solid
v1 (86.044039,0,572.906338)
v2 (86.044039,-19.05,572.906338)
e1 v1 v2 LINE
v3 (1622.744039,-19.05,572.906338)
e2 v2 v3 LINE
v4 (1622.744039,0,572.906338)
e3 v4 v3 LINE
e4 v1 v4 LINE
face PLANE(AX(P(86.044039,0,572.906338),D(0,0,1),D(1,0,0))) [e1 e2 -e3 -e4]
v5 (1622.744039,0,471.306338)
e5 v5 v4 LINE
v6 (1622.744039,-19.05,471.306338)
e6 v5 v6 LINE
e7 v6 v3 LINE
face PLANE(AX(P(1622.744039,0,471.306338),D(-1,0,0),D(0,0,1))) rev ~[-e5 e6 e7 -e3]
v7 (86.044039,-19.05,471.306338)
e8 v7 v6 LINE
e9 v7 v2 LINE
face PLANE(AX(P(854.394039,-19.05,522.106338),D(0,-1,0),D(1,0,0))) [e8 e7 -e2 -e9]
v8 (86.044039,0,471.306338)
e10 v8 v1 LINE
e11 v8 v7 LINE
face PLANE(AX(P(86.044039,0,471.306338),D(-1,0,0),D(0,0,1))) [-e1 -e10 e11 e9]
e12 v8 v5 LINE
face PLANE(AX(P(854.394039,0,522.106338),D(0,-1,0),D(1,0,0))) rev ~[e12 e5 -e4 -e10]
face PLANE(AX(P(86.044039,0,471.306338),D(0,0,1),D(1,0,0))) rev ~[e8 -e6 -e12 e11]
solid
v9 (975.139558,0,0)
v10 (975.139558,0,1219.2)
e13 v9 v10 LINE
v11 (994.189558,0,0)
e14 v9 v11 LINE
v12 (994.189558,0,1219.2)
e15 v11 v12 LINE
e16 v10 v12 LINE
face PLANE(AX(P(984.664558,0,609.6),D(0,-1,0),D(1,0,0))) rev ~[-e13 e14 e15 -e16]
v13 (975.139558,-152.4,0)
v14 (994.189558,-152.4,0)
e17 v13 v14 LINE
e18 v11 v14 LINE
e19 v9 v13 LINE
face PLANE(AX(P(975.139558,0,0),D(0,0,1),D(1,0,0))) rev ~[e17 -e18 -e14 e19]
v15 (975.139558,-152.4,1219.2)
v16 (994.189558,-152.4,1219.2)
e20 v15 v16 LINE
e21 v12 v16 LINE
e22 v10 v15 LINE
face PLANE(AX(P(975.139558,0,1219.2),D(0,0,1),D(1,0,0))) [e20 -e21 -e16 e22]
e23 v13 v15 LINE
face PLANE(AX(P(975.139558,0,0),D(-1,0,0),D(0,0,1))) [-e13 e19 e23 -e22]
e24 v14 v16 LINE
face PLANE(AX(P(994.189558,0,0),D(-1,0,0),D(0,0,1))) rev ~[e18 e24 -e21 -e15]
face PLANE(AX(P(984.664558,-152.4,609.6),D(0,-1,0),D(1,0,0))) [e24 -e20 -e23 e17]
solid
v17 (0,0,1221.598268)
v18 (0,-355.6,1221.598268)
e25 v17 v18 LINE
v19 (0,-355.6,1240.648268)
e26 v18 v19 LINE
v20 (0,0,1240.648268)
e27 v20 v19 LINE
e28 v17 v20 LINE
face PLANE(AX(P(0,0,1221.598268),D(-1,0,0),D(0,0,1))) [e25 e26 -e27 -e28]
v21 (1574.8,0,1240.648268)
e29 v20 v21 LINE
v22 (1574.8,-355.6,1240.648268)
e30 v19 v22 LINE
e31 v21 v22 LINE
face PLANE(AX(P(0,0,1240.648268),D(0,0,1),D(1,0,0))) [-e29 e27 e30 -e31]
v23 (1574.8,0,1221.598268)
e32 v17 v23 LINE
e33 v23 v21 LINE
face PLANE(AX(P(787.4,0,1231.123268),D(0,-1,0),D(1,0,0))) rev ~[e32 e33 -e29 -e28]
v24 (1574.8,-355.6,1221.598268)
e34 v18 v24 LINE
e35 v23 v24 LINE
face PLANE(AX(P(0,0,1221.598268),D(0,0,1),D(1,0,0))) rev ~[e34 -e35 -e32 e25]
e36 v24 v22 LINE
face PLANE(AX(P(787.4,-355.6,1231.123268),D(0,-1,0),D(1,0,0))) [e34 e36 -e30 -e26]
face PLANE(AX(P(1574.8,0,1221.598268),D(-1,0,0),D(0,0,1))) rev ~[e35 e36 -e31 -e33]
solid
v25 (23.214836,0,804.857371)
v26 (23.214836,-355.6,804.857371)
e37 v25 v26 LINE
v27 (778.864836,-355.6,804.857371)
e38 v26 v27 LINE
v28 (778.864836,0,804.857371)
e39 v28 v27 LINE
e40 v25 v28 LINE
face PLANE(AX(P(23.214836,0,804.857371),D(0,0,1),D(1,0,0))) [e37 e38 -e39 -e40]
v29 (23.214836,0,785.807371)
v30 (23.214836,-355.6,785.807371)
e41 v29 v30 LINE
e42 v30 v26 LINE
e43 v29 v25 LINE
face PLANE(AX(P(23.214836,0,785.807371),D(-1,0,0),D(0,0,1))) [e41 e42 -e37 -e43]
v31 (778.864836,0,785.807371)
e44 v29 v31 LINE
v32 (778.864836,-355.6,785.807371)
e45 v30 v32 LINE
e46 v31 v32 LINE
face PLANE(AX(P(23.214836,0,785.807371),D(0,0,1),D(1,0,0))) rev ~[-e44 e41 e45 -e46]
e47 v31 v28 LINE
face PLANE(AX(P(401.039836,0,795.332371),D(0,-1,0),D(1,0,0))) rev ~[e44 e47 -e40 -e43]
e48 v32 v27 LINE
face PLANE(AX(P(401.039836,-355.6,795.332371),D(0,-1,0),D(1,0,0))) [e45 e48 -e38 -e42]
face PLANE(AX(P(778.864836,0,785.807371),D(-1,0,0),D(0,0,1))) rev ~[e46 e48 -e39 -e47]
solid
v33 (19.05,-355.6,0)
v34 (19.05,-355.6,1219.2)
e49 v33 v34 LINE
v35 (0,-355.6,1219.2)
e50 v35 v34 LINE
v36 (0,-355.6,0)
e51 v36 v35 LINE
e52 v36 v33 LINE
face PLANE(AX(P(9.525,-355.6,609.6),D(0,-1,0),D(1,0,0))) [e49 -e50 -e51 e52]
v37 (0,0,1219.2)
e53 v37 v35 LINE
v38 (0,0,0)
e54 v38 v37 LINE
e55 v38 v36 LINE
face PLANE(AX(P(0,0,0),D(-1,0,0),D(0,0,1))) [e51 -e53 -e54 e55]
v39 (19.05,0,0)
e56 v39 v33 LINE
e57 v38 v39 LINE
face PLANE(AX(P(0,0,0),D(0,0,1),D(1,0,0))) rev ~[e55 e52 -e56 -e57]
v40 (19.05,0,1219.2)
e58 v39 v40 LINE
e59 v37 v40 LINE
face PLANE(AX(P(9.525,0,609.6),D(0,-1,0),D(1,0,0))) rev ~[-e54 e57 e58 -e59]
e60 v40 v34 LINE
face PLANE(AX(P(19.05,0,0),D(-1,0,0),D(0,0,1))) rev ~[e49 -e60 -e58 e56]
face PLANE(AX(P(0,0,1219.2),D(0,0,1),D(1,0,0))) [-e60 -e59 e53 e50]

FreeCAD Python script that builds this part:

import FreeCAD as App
import Part
import Sketcher
Q = App.Units.Quantity

doc = App.newDocument("Part")
body = doc.addObject("PartDesign::Body", "Body")

# Sketch on XZ plane
sketch1 = doc.addObject("Sketcher::SketchObject", "Sketch")
body.addObject(sketch1)
sketch1.AttachmentSupport = (doc.XZ_Plane, [""])
sketch1.MapMode = "FlatFace"
sketch1.addGeometry(Part.LineSegment(App.Vector(0, 1219.2, 0), App.Vector(0, 0, 0)), False)
sketch1.addGeometry(Part.LineSegment(App.Vector(0, 0, 0), App.Vector(19.05, 0, 0)), False)
sketch1.addGeometry(Part.LineSegment(App.Vector(19.05, 0, 0), App.Vector(19.05, 1219.2, 0)), False)
sketch1.addGeometry(Part.LineSegment(App.Vector(19.05, 1219.2, 0), App.Vector(0, 1219.2, 0)), False)
sketch1.addConstraint(Sketcher.Constraint("Coincident", 0, 2, 1, 1))
sketch1.addConstraint(Sketcher.Constraint("Coincident", 1, 2, 2, 1))
sketch1.addConstraint(Sketcher.Constraint("Coincident", 2, 2, 3, 1))
sketch1.addConstraint(Sketcher.Constraint("Coincident", 3, 2, 0, 1))
sketch1.addConstraint(Sketcher.Constraint("Vertical", 0))
sketch1.addConstraint(Sketcher.Constraint("Horizontal", 1))
sketch1.addConstraint(Sketcher.Constraint("Vertical", 2))
sketch1.addConstraint(Sketcher.Constraint("Horizontal", 3))
sketch1.addConstraint(Sketcher.Constraint("Coincident", 0, 2, -1, 1))
sketch1.addConstraint(Sketcher.Constraint("DistanceY", 0, 2, 0, 1, Q("48 in")))
sketch1.addConstraint(Sketcher.Constraint("DistanceX", 1, 1, 1, 2, Q("0.75 in")))
pad1 = doc.addObject("PartDesign::Pad", "Pad")
body.addObject(pad1)
pad1.Profile = sketch1
pad1.Length = Q("14 in")
body2 = doc.addObject("PartDesign::Body", "Body001")

# Sketch on XZ plane
sketch2 = doc.addObject("Sketcher::SketchObject", "Sketch001")
body2.addObject(sketch2)
sketch2.AttachmentSupport = (doc.getObject("XZ_Plane001"), [""])
sketch2.MapMode = "FlatFace"
sketch2.addGeometry(Part.LineSegment(App.Vector(0, 1240.648268, 0), App.Vector(0, 1221.598268, 0)), False)
sketch2.addGeometry(Part.LineSegment(App.Vector(0, 1221.598268, 0), App.Vector(1574.8, 1221.598268, 0)), False)
sketch2.addGeometry(Part.LineSegment(App.Vector(1574.8, 1221.598268, 0), App.Vector(1574.8, 1240.648268, 0)), False)
sketch2.addGeometry(Part.LineSegment(App.Vector(1574.8, 1240.648268, 0), App.Vector(0, 1240.648268, 0)), False)
sketch2.addConstraint(Sketcher.Constraint("Coincident", 0, 2, 1, 1))
sketch2.addConstraint(Sketcher.Constraint("Coincident", 1, 2, 2, 1))
sketch2.addConstraint(Sketcher.Constraint("Coincident", 2, 2, 3, 1))
sketch2.addConstraint(Sketcher.Constraint("Coincident", 3, 2, 0, 1))
sketch2.addConstraint(Sketcher.Constraint("Vertical", 0))
sketch2.addConstraint(Sketcher.Constraint("Horizontal", 1))
sketch2.addConstraint(Sketcher.Constraint("Vertical", 2))
sketch2.addConstraint(Sketcher.Constraint("Horizontal", 3))
sketch2.addConstraint(Sketcher.Constraint("PointOnObject", 0, 2, -2))
sketch2.addConstraint(Sketcher.Constraint("DistanceX", 1, 1, 1, 2, Q("62 in")))
sketch2.addConstraint(Sketcher.Constraint("DistanceY", 0, 2, 0, 1, Q("0.75 in")))
sketch2.addConstraint(Sketcher.Constraint("DistanceY", -1, 1, 0, 2, Q("1221.598268 mm")))
pad2 = doc.addObject("PartDesign::Pad", "Pad001")
body2.addObject(pad2)
pad2.Profile = sketch2
pad2.Length = Q("14 in")
body3 = doc.addObject("PartDesign::Body", "Body002")

# Sketch on XZ plane
sketch3 = doc.addObject("Sketcher::SketchObject", "Sketch002")
body3.addObject(sketch3)
sketch3.AttachmentSupport = (doc.getObject("XZ_Plane002"), [""])
sketch3.MapMode = "FlatFace"
sketch3.addGeometry(Part.LineSegment(App.Vector(23.214836, 804.857371, 0), App.Vector(23.214836, 785.807371, 0)), False)
sketch3.addGeometry(Part.LineSegment(App.Vector(23.214836, 785.807371, 0), App.Vector(778.864836, 785.807371, 0)), False)
sketch3.addGeometry(Part.LineSegment(App.Vector(778.864836, 785.807371, 0), App.Vector(778.864836, 804.857371, 0)), False)
sketch3.addGeometry(Part.LineSegment(App.Vector(778.864836, 804.857371, 0), App.Vector(23.214836, 804.857371, 0)), False)
sketch3.addConstraint(Sketcher.Constraint("Coincident", 0, 2, 1, 1))
sketch3.addConstraint(Sketcher.Constraint("Coincident", 1, 2, 2, 1))
sketch3.addConstraint(Sketcher.Constraint("Coincident", 2, 2, 3, 1))
sketch3.addConstraint(Sketcher.Constraint("Coincident", 3, 2, 0, 1))
sketch3.addConstraint(Sketcher.Constraint("Vertical", 0))
sketch3.addConstraint(Sketcher.Constraint("Horizontal", 1))
sketch3.addConstraint(Sketcher.Constraint("Vertical", 2))
sketch3.addConstraint(Sketcher.Constraint("Horizontal", 3))
sketch3.addConstraint(Sketcher.Constraint("DistanceX", 1, 1, 1, 2, Q("29.75 in")))
sketch3.addConstraint(Sketcher.Constraint("DistanceY", 0, 2, 0, 1, Q("0.75 in")))
sketch3.addConstraint(Sketcher.Constraint("DistanceY", -1, 1, 0, 2, Q("785.807371 mm")))
sketch3.addConstraint(Sketcher.Constraint("DistanceX", -1, 1, 0, 2, Q("23.214836 mm")))
pad3 = doc.addObject("PartDesign::Pad", "Pad002")
body3.addObject(pad3)
pad3.Profile = sketch3
pad3.Length = Q("14 in")
body4 = doc.addObject("PartDesign::Body", "Body003")

# Sketch on XZ plane
sketch4 = doc.addObject("Sketcher::SketchObject", "Sketch003")
body4.addObject(sketch4)
sketch4.AttachmentSupport = (doc.getObject("XZ_Plane003"), [""])
sketch4.MapMode = "FlatFace"
sketch4.addGeometry(Part.LineSegment(App.Vector(86.044039, 572.906338, 0), App.Vector(86.044039, 471.306338, 0)), False)
sketch4.addGeometry(Part.LineSegment(App.Vector(86.044039, 471.306338, 0), App.Vector(1622.744039, 471.306338, 0)), False)
sketch4.addGeometry(Part.LineSegment(App.Vector(1622.744039, 471.306338, 0), App.Vector(1622.744039, 572.906338, 0)), False)
sketch4.addGeometry(Part.LineSegment(App.Vector(1622.744039, 572.906338, 0), App.Vector(86.044039, 572.906338, 0)), False)
sketch4.addConstraint(Sketcher.Constraint("Coincident", 0, 2, 1, 1))
sketch4.addConstraint(Sketcher.Constraint("Coincident", 1, 2, 2, 1))
sketch4.addConstraint(Sketcher.Constraint("Coincident", 2, 2, 3, 1))
sketch4.addConstraint(Sketcher.Constraint("Coincident", 3, 2, 0, 1))
sketch4.addConstraint(Sketcher.Constraint("Vertical", 0))
sketch4.addConstraint(Sketcher.Constraint("Horizontal", 1))
sketch4.addConstraint(Sketcher.Constraint("Vertical", 2))
sketch4.addConstraint(Sketcher.Constraint("Horizontal", 3))
sketch4.addConstraint(Sketcher.Constraint("DistanceY", 0, 2, 0, 1, Q("4 in")))
sketch4.addConstraint(Sketcher.Constraint("DistanceX", 1, 1, 1, 2, Q("60.5 in")))
sketch4.addConstraint(Sketcher.Constraint("DistanceX", -1, 1, 0, 2, Q("86.044039 mm")))
sketch4.addConstraint(Sketcher.Constraint("DistanceY", -1, 1, 0, 2, Q("471.306338 mm")))
pad4 = doc.addObject("PartDesign::Pad", "Pad003")
body4.addObject(pad4)
pad4.Profile = sketch4
pad4.Length = Q("0.75 in")
body5 = doc.addObject("PartDesign::Body", "Body004")

# Sketch on XZ plane
sketch5 = doc.addObject("Sketcher::SketchObject", "Sketch004")
body5.addObject(sketch5)
sketch5.AttachmentSupport = (doc.getObject("XZ_Plane004"), [""])
sketch5.MapMode = "FlatFace"
sketch5.addGeometry(Part.LineSegment(App.Vector(975.139558, 1219.2, 0), App.Vector(975.139558, 0, 0)), False)
sketch5.addGeometry(Part.LineSegment(App.Vector(975.139558, 0, 0), App.Vector(994.189558, 0, 0)), False)
sketch5.addGeometry(Part.LineSegment(App.Vector(994.189558, 0, 0), App.Vector(994.189558, 1219.2, 0)), False)
sketch5.addGeometry(Part.LineSegment(App.Vector(994.189558, 1219.2, 0), App.Vector(975.139558, 1219.2, 0)), False)
sketch5.addConstraint(Sketcher.Constraint("Coincident", 0, 2, 1, 1))
sketch5.addConstraint(Sketcher.Constraint("Coincident", 1, 2, 2, 1))
sketch5.addConstraint(Sketcher.Constraint("Coincident", 2, 2, 3, 1))
sketch5.addConstraint(Sketcher.Constraint("Coincident", 3, 2, 0, 1))
sketch5.addConstraint(Sketcher.Constraint("Vertical", 0))
sketch5.addConstraint(Sketcher.Constraint("Horizontal", 1))
sketch5.addConstraint(Sketcher.Constraint("Vertical", 2))
sketch5.addConstraint(Sketcher.Constraint("Horizontal", 3))
sketch5.addConstraint(Sketcher.Constraint("PointOnObject", 0, 2, -1))
sketch5.addConstraint(Sketcher.Constraint("DistanceY", 0, 2, 0, 1, Q("48 in")))
sketch5.addConstraint(Sketcher.Constraint("DistanceX", 1, 1, 1, 2, Q("0.75 in")))
sketch5.addConstraint(Sketcher.Constraint("DistanceX", -1, 1, 0, 2, Q("975.139558 mm")))
pad5 = doc.addObject("PartDesign::Pad", "Pad004")
body5.addObject(pad5)
pad5.Profile = sketch5
pad5.Length = Q("6 in")

doc.recompute()
